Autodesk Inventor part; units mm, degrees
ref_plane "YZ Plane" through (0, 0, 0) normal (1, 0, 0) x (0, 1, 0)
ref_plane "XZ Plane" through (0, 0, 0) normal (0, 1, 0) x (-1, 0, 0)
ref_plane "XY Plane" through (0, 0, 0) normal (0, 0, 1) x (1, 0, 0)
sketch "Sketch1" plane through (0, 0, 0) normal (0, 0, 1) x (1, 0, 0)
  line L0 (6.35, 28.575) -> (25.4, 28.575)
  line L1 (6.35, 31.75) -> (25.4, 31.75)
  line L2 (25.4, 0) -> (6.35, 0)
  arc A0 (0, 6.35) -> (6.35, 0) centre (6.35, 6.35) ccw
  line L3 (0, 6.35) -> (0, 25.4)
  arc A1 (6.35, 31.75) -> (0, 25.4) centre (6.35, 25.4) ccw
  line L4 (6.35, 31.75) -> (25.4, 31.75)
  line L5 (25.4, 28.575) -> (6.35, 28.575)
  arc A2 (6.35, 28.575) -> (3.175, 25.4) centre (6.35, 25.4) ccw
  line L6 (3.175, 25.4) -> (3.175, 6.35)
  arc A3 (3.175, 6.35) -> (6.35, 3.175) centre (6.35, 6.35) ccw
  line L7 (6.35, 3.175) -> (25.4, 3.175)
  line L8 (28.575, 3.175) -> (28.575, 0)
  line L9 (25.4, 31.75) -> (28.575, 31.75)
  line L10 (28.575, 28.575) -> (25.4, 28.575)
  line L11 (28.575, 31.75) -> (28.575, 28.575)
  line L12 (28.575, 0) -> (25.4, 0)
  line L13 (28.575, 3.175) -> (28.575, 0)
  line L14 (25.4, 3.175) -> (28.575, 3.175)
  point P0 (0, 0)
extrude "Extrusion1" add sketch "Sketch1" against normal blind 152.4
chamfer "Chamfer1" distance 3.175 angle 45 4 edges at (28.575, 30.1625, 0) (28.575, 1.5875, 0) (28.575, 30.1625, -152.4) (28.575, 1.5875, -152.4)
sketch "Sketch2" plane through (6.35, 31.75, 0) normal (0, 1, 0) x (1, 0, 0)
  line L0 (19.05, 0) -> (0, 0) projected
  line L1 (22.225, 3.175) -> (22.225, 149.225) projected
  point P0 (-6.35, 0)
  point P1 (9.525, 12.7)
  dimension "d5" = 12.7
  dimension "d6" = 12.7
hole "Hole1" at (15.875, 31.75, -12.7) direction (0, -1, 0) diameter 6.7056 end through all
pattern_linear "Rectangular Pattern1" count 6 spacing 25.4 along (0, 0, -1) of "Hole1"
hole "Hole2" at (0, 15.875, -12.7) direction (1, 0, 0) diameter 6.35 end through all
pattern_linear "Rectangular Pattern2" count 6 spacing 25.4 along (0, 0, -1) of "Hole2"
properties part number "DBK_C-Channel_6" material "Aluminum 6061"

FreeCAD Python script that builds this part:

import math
import FreeCAD as App
import Part
import Sketcher

V = App.Vector
Q = App.Units.Quantity


def edges_at(feature, points):
    """Names of the edges that pass closest to the given points."""
    edges = feature.Shape.Edges
    near = lambda p: min(range(len(edges)), key=lambda i: edges[i].distToShape(Part.Vertex(*p))[0])
    return sorted({f"Edge{near(p) + 1}" for p in points})

doc = App.newDocument("Part")
body = doc.addObject("PartDesign::Body", "Body")

# Sketch on XY plane
sketch1 = doc.addObject("Sketcher::SketchObject", "Sketch")
body.addObject(sketch1)
sketch1.AttachmentSupport = (doc.XY_Plane, [""])
sketch1.MapMode = "FlatFace"
sketch1.addGeometry(Part.ArcOfCircle(Part.Circle(V(6.3, 25.4, 0), V(0, 0, 1), 3.2), math.radians(90), math.radians(180)), False)
sketch1.addGeometry(Part.LineSegment(V(6.3, 28.6, 0), V(28.6, 28.6, 0)), False)
sketch1.addGeometry(Part.LineSegment(V(28.6, 28.6, 0), V(28.6, 31.8, 0)), False)
sketch1.addGeometry(Part.LineSegment(V(28.6, 31.8, 0), V(6.3, 31.8, 0)), False)
sketch1.addGeometry(Part.ArcOfCircle(Part.Circle(V(6.3, 25.4, 0), V(0, 0, 1), 6.4), math.radians(90), math.radians(180)), False)
sketch1.addGeometry(Part.LineSegment(V(0, 25.4, 0), V(0, 6.3, 0)), False)
sketch1.addGeometry(Part.ArcOfCircle(Part.Circle(V(6.3, 6.3, 0), V(0, 0, 1), 6.3), math.radians(180), math.radians(270)), False)
sketch1.addGeometry(Part.LineSegment(V(6.3, 0, 0), V(28.6, 0, 0)), False)
sketch1.addGeometry(Part.LineSegment(V(28.6, 0, 0), V(28.6, 3.2, 0)), False)
sketch1.addGeometry(Part.LineSegment(V(28.6, 3.2, 0), V(6.3, 3.2, 0)), False)
sketch1.addGeometry(Part.ArcOfCircle(Part.Circle(V(6.3, 6.3, 0), V(0, 0, 1), 3.2), math.radians(180), math.radians(270)), False)
sketch1.addGeometry(Part.LineSegment(V(3.2, 6.3, 0), V(3.2, 25.4, 0)), False)
sketch1.addConstraint(Sketcher.Constraint("Tangent", 0, 1, 1, 1))
sketch1.addConstraint(Sketcher.Constraint("Coincident", 1, 2, 2, 1))
sketch1.addConstraint(Sketcher.Constraint("Coincident", 2, 2, 3, 1))
sketch1.addConstraint(Sketcher.Constraint("Tangent", 3, 2, 4, 1))
sketch1.addConstraint(Sketcher.Constraint("Tangent", 4, 2, 5, 1))
sketch1.addConstraint(Sketcher.Constraint("Tangent", 5, 2, 6, 1))
sketch1.addConstraint(Sketcher.Constraint("Tangent", 6, 2, 7, 1))
sketch1.addConstraint(Sketcher.Constraint("Coincident", 7, 2, 8, 1))
sketch1.addConstraint(Sketcher.Constraint("Coincident", 8, 2, 9, 1))
sketch1.addConstraint(Sketcher.Constraint("Tangent", 9, 2, 10, 2))
sketch1.addConstraint(Sketcher.Constraint("Tangent", 10, 1, 11, 1))
sketch1.addConstraint(Sketcher.Constraint("Tangent", 11, 2, 0, 2))
sketch1.addConstraint(Sketcher.Constraint("Horizontal", 1))
sketch1.addConstraint(Sketcher.Constraint("Vertical", 2))
sketch1.addConstraint(Sketcher.Constraint("Horizontal", 3))
sketch1.addConstraint(Sketcher.Constraint("Vertical", 5))
sketch1.addConstraint(Sketcher.Constraint("Horizontal", 7))
sketch1.addConstraint(Sketcher.Constraint("Vertical", 8))
sketch1.addConstraint(Sketcher.Constraint("Horizontal", 9))
sketch1.addConstraint(Sketcher.Constraint("Vertical", 11))
sketch1.addConstraint(Sketcher.Constraint("Coincident", 4, 3, 0, 3))
sketch1.addConstraint(Sketcher.Constraint("Coincident", 10, 3, 6, 3))
sketch1.addConstraint(Sketcher.Constraint("Equal", 4, 6))
sketch1.addConstraint(Sketcher.Constraint("PointOnObject", 4, 2, -2))
sketch1.addConstraint(Sketcher.Constraint("PointOnObject", 6, 2, -1))
sketch1.addConstraint(Sketcher.Constraint("Vertical", 2, 2, 7, 2))
sketch1.addConstraint(Sketcher.Constraint("Radius", 4, Q("0.25 in")))
sketch1.addConstraint(Sketcher.Constraint("DistanceY", -1, 1, 0, 3, Q("1 in")))
sketch1.addConstraint(Sketcher.Constraint("Radius", 0, Q("0.125 in")))
sketch1.addConstraint(Sketcher.Constraint("DistanceX", 1, 1, 1, 2, Q("0.875 in")))
pad1 = doc.addObject("PartDesign::Pad", "Pad")
body.addObject(pad1)
pad1.Profile = sketch1
pad1.Length = Q("6 in")
pad1.Reversed = True
doc.recompute()

chamfer = doc.addObject("PartDesign::Chamfer", "Chamfer")
body.addObject(chamfer)
chamfer.Base = (pad1, edges_at(pad1, [
    (28.575, 30.163, 0),
    (28.575, 1.587, 0),
    (28.575, 30.163, -152.4),
    (28.575, 1.587, -152.4),
]))
chamfer.Size = Q("0.125 in")

# Sketch on XZ plane
sketch2 = doc.addObject("Sketcher::SketchObject", "Sketch001")
body.addObject(sketch2)
sketch2.AttachmentSupport = (doc.XZ_Plane, [""])
sketch2.MapMode = "FlatFace"
sketch2.AttachmentOffset = App.Placement(V(0, 0, -1.25 * 25.4), App.Rotation())
sketch2.addGeometry(Part.Circle(V(15.9, -12.7, 0), V(0, 0, 1), 3.4), False)
sketch2.addConstraint(Sketcher.Constraint("Diameter", 0, Q("0.264 in")))
sketch2.addConstraint(Sketcher.Constraint("DistanceY", 0, 3, -1, 1, Q("0.5 in")))
sketch2.addConstraint(Sketcher.Constraint("DistanceX", -1, 1, 0, 3, Q("0.625 in")))
doc.recompute()
hole = doc.addObject("PartDesign::Hole", "Hole")
body.addObject(hole)
hole.Profile = sketch2
hole.ThreadType = "None"
hole.Diameter = Q("0.264 in")
hole.DepthType = "ThroughAll"
hole.Reversed = True
doc.recompute()

linearpattern = doc.addObject("PartDesign::LinearPattern", "LinearPattern")
body.addObject(linearpattern)
linearpattern.Originals = [hole]
linearpattern.Direction = (doc.Z_Axis, [""])
linearpattern.Mode = "offset"
linearpattern.Offset = Q("1 in")
linearpattern.Occurrences = 6
linearpattern.Reversed = True
body.Tip = linearpattern

# Sketch on YZ plane
sketch3 = doc.addObject("Sketcher::SketchObject", "Sketch002")
body.addObject(sketch3)
sketch3.AttachmentSupport = (doc.YZ_Plane, [""])
sketch3.MapMode = "FlatFace"
sketch3.addGeometry(Part.Circle(V(15.9, -12.7, 0), V(0, 0, 1), 3.2), False)
sketch3.addConstraint(Sketcher.Constraint("Diameter", 0, Q("0.25 in")))
sketch3.addConstraint(Sketcher.Constraint("DistanceY", 0, 3, -1, 1, Q("0.5 in")))
sketch3.addConstraint(Sketcher.Constraint("DistanceX", -1, 1, 0, 3, Q("0.625 in")))
doc.recompute()
hole2 = doc.addObject("PartDesign::Hole", "Hole001")
body.addObject(hole2)
hole2.Profile = sketch3
hole2.ThreadType = "None"
hole2.Diameter = Q("0.25 in")
hole2.DepthType = "ThroughAll"
hole2.Reversed = True
doc.recompute()

linearpattern2 = doc.addObject("PartDesign::LinearPattern", "LinearPattern001")
body.addObject(linearpattern2)
linearpattern2.Originals = [hole2]
linearpattern2.Direction = (doc.Z_Axis, [""])
linearpattern2.Mode = "offset"
linearpattern2.Offset = Q("1 in")
linearpattern2.Occurrences = 6
linearpattern2.Reversed = True
body.Tip = linearpattern2

doc.recompute()
